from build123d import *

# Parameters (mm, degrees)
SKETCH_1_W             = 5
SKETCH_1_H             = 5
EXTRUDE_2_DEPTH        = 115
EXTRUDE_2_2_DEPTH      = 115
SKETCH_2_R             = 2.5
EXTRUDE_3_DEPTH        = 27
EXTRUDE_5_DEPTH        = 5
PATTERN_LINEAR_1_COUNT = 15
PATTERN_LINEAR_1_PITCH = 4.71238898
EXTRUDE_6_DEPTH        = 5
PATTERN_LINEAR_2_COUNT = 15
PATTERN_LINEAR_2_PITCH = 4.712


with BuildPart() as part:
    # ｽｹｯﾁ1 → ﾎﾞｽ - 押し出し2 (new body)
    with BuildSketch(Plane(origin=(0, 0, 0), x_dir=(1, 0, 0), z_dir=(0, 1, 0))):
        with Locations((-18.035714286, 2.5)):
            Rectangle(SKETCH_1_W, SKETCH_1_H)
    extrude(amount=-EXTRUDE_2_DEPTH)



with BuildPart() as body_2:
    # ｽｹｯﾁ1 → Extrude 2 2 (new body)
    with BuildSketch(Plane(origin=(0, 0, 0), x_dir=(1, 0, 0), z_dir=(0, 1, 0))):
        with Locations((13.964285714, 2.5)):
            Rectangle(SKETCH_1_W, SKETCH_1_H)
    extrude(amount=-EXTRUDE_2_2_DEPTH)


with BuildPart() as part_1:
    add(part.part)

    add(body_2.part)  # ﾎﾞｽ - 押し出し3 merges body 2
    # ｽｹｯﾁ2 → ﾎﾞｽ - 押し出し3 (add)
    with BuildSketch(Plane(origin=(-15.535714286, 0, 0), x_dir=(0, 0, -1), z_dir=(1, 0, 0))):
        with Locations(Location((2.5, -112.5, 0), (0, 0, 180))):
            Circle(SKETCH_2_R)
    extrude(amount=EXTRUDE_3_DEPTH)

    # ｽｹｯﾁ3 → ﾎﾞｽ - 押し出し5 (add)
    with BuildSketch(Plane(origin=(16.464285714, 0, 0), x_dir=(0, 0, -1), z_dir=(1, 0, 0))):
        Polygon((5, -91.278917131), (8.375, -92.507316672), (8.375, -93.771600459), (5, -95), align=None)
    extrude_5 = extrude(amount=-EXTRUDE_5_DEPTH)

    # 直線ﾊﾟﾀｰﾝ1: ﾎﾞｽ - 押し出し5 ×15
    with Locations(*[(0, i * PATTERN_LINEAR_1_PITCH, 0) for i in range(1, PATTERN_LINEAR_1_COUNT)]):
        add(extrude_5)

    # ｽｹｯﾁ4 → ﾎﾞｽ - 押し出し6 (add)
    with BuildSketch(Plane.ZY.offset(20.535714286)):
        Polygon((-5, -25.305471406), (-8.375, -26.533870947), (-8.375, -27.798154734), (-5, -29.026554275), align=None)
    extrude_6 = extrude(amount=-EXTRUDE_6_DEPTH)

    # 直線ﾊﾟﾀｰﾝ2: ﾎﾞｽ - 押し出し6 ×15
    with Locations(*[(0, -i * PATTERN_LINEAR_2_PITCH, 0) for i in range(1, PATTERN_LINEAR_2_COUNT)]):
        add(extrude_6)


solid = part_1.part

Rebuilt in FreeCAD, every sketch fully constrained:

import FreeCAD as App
import Part
import Sketcher

V = App.Vector
Q = App.Units.Quantity

doc = App.newDocument("Part")
body = doc.addObject("PartDesign::Body", "Body")

# Sketch on XZ plane
sketch1 = body.newObject("Sketcher::SketchObject", "Sketch")
sketch1.AttachmentSupport = (doc.getObject("XZ_Plane"), [""])
sketch1.MapMode = "FlatFace"
sketch1.addGeometry([
    Part.LineSegment(V(-20.535714, -5, 0), V(-20.535714, 0, 0)),
    Part.LineSegment(V(-20.535714, 0, 0), V(-15.535714, 0, 0)),
    Part.LineSegment(V(-15.535714, 0, 0), V(-15.535714, -5, 0)),
    Part.LineSegment(V(-15.535714, -5, 0), V(-20.535714, -5, 0)),
], False)
sketch1.addConstraint([
    Sketcher.Constraint("Coincident", 0, 2, 1, 1),
    Sketcher.Constraint("Coincident", 1, 2, 2, 1),
    Sketcher.Constraint("Coincident", 2, 2, 3, 1),
    Sketcher.Constraint("Coincident", 3, 2, 0, 1),
    Sketcher.Constraint("Vertical", 0),
    Sketcher.Constraint("Horizontal", 1),
    Sketcher.Constraint("Vertical", 2),
    Sketcher.Constraint("Horizontal", 3),
    Sketcher.Constraint("PointOnObject", 0, 2, -1),
    Sketcher.Constraint("Equal", 3, 0),
    Sketcher.Constraint("DistanceX", 1, 1, 1, 2, 5.0),
    Sketcher.Constraint("DistanceX", 0, 2, -1, 1, 20.535714),
])
pad1 = body.newObject("PartDesign::Pad", "Pad")
pad1.Profile = sketch1
pad1.Length = 115
body2 = doc.addObject("PartDesign::Body", "Body001")

# Sketch on XZ plane
sketch2 = body2.newObject("Sketcher::SketchObject", "Sketch001")
sketch2.AttachmentSupport = (doc.getObject("XZ_Plane001"), [""])
sketch2.MapMode = "FlatFace"
sketch2.addGeometry([
    Part.LineSegment(V(11.464286, -5, 0), V(11.464286, 0, 0)),
    Part.LineSegment(V(11.464286, 0, 0), V(16.464286, 0, 0)),
    Part.LineSegment(V(16.464286, 0, 0), V(16.464286, -5, 0)),
    Part.LineSegment(V(16.464286, -5, 0), V(11.464286, -5, 0)),
], False)
sketch2.addConstraint([
    Sketcher.Constraint("Coincident", 0, 2, 1, 1),
    Sketcher.Constraint("Coincident", 1, 2, 2, 1),
    Sketcher.Constraint("Coincident", 2, 2, 3, 1),
    Sketcher.Constraint("Coincident", 3, 2, 0, 1),
    Sketcher.Constraint("Vertical", 0),
    Sketcher.Constraint("Horizontal", 1),
    Sketcher.Constraint("Vertical", 2),
    Sketcher.Constraint("Horizontal", 3),
    Sketcher.Constraint("PointOnObject", 0, 2, -1),
    Sketcher.Constraint("Equal", 3, 0),
    Sketcher.Constraint("DistanceX", 1, 1, 1, 2, 5.0),
    Sketcher.Constraint("DistanceX", -1, 1, 0, 2, 11.464286),
])
pad2 = body2.newObject("PartDesign::Pad", "Pad001")
pad2.Profile = sketch2
pad2.Length = 115
body.AllowCompound = True
doc.recompute()

boolean = body.newObject("PartDesign::Boolean", "Boolean")
boolean.Type = "Fuse"
boolean.addObjects([body2])

# Sketch on YZ plane
sketch3 = body.newObject("Sketcher::SketchObject", "Sketch002")
sketch3.AttachmentSupport = (doc.getObject("YZ_Plane"), [""])
sketch3.MapMode = "FlatFace"
sketch3.AttachmentOffset = App.Placement(V(0, 0, -15.535714), App.Rotation())
sketch3.addGeometry(Part.Circle(V(-112.5, -2.5, 0), V(0, 0, 1), 2.5), False)
sketch3.addConstraint([
    Sketcher.Constraint("Diameter", 0, 5.0),
    Sketcher.Constraint("DistanceX", 0, 3, -1, 1, 112.5),
    Sketcher.Constraint("DistanceY", 0, 3, -1, 1, 2.5),
])
pad3 = body.newObject("PartDesign::Pad", "Pad002")
pad3.Profile = sketch3
pad3.Length = 27

# Sketch on YZ plane
sketch4 = body.newObject("Sketcher::SketchObject", "Sketch003")
sketch4.AttachmentSupport = (doc.getObject("YZ_Plane"), [""])
sketch4.MapMode = "FlatFace"
sketch4.AttachmentOffset = App.Placement(V(0, 0, 16.464286), App.Rotation())
sketch4.addGeometry([
    Part.LineSegment(V(-92.507317, -8.375, 0), V(-91.278917, -5, 0)),
    Part.LineSegment(V(-91.278917, -5, 0), V(-95, -5, 0)),
    Part.LineSegment(V(-95, -5, 0), V(-93.7716, -8.375, 0)),
    Part.LineSegment(V(-93.7716, -8.375, 0), V(-92.507317, -8.375, 0)),
], False)
sketch4.addConstraint([
    Sketcher.Constraint("Coincident", 0, 2, 1, 1),
    Sketcher.Constraint("Coincident", 1, 2, 2, 1),
    Sketcher.Constraint("Coincident", 2, 2, 3, 1),
    Sketcher.Constraint("Coincident", 3, 2, 0, 1),
    Sketcher.Constraint("Horizontal", 1),
    Sketcher.Constraint("Horizontal", 3),
    Sketcher.Constraint("Equal", 0, 2),
    Sketcher.Constraint("Angle", 0, Q("70 deg")),
    Sketcher.Constraint("DistanceY", 0, 2, -1, 1, 5.0),
    Sketcher.Constraint("DistanceX", 1, 2, -1, 1, 95.0),
    Sketcher.Constraint("DistanceY", 2, 2, -1, 1, 8.375),
    Sketcher.Constraint("DistanceX", 1, 2, 1, 1, 3.721083),
])
pad4 = body.newObject("PartDesign::Pad", "Pad003")
pad4.Profile = sketch4
pad4.Length = 5
pad4.Reversed = True
doc.recompute()

linearpattern = body.newObject("PartDesign::LinearPattern", "LinearPattern")
linearpattern.Originals = [pad4]
linearpattern.Direction = (doc.getObject("Y_Axis"), [""])
linearpattern.Mode = "offset"
linearpattern.Offset = 4.712389
linearpattern.Occurrences = 15
body.Tip = linearpattern

# Sketch on YZ plane
sketch5 = body.newObject("Sketcher::SketchObject", "Sketch004")
sketch5.AttachmentSupport = (doc.getObject("YZ_Plane"), [""])
sketch5.MapMode = "FlatFace"
sketch5.AttachmentOffset = App.Placement(V(0, 0, -20.535714), App.Rotation())
sketch5.addGeometry([
    Part.LineSegment(V(-25.305471, -5, 0), V(-26.533871, -8.375, 0)),
    Part.LineSegment(V(-26.533871, -8.375, 0), V(-27.798155, -8.375, 0)),
    Part.LineSegment(V(-27.798155, -8.375, 0), V(-29.026554, -5, 0)),
    Part.LineSegment(V(-29.026554, -5, 0), V(-25.305471, -5, 0)),
], False)
sketch5.addConstraint([
    Sketcher.Constraint("Coincident", 0, 2, 1, 1),
    Sketcher.Constraint("Coincident", 1, 2, 2, 1),
    Sketcher.Constraint("Coincident", 2, 2, 3, 1),
    Sketcher.Constraint("Coincident", 3, 2, 0, 1),
    Sketcher.Constraint("Horizontal", 1),
    Sketcher.Constraint("Horizontal", 3),
    Sketcher.Constraint("Equal", 0, 2),
    Sketcher.Constraint("Angle", 0, Q("-110 deg")),
    Sketcher.Constraint("DistanceY", 2, 2, -1, 1, 5.0),
    Sketcher.Constraint("DistanceY", 0, 2, -1, 1, 8.375),
    Sketcher.Constraint("DistanceX", 1, 2, 1, 1, 1.264284),
    Sketcher.Constraint("DistanceX", 0, 2, -1, 1, 26.533871),
])
pad5 = body.newObject("PartDesign::Pad", "Pad004")
pad5.Profile = sketch5
pad5.Length = 5
doc.recompute()

linearpattern2 = body.newObject("PartDesign::LinearPattern", "LinearPattern001")
linearpattern2.Originals = [pad5]
linearpattern2.Direction = (doc.getObject("Y_Axis"), [""])
linearpattern2.Mode = "offset"
linearpattern2.Offset = 4.712
linearpattern2.Occurrences = 15
linearpattern2.Reversed = True
body.Tip = linearpattern2

doc.recompute()
